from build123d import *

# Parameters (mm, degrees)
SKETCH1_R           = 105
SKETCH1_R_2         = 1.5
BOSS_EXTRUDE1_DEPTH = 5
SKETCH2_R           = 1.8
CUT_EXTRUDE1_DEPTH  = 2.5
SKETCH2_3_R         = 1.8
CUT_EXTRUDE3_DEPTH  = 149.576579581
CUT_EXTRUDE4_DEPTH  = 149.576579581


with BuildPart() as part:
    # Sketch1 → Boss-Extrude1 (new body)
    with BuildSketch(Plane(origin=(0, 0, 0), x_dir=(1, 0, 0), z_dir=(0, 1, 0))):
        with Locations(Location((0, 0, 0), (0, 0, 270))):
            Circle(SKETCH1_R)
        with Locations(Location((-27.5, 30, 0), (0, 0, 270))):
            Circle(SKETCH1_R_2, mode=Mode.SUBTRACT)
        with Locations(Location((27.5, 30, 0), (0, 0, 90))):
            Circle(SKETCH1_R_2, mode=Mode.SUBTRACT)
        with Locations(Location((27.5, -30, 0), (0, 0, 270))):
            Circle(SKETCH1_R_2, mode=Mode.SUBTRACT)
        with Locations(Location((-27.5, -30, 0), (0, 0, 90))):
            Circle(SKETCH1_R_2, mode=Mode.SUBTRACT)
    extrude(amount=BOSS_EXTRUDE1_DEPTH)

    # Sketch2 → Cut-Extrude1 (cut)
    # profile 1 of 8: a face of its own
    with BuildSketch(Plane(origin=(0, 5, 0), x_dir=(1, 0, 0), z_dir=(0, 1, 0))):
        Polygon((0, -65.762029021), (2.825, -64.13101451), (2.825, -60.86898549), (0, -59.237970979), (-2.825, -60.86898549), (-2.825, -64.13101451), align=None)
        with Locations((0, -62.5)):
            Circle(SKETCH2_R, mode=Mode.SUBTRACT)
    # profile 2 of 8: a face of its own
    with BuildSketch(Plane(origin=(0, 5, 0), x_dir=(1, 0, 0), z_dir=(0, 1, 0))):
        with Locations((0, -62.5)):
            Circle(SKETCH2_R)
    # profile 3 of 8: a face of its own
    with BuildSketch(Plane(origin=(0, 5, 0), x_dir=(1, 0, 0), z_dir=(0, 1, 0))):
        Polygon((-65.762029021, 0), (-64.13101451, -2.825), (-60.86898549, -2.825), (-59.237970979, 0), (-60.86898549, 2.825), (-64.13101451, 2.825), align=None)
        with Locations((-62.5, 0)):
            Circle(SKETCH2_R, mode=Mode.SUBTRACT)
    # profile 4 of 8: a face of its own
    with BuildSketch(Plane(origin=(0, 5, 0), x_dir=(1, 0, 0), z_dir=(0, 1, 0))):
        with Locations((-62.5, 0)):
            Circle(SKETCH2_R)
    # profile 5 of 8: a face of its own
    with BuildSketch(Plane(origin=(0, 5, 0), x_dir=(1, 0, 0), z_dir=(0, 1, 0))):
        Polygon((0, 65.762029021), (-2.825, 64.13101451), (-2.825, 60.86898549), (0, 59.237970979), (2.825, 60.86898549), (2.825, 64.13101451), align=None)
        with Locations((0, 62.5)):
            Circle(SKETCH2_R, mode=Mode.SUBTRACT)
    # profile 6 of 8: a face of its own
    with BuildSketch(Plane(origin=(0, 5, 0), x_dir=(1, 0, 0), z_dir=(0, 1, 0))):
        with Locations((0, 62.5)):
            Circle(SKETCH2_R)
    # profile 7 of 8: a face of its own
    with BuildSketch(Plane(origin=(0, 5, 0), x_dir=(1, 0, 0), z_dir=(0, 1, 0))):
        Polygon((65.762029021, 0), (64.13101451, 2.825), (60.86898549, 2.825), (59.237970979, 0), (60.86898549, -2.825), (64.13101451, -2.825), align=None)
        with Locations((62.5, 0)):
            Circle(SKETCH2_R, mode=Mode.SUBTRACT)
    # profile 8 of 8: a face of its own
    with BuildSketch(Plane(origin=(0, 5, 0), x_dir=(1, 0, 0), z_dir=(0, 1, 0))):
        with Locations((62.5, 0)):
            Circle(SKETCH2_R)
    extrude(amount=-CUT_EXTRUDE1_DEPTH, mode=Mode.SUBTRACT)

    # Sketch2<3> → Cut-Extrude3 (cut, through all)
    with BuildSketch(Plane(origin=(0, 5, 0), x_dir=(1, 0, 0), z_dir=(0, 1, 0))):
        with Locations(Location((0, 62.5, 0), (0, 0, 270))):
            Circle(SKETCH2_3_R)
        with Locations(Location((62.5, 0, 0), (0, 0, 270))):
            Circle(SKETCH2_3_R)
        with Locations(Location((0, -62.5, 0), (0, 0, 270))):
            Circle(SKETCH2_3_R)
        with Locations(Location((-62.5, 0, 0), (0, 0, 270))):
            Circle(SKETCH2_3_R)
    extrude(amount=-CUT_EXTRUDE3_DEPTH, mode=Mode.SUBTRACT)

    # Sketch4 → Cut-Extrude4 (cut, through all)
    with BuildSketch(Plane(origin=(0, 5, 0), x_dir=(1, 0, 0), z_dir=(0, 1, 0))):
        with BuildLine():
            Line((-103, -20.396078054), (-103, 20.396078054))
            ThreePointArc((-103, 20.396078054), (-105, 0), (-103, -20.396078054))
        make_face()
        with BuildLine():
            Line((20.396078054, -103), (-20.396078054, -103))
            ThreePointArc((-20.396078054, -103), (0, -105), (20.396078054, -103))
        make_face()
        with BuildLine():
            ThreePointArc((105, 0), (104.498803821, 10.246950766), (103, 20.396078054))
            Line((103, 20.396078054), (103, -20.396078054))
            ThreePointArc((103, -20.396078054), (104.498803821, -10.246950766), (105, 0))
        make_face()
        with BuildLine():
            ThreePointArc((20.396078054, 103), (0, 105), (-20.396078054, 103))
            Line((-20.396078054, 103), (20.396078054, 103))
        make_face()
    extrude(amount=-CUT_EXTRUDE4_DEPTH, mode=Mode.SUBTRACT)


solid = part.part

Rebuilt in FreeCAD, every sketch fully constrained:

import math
import FreeCAD as App
import Part
import Sketcher
from FreeCAD import Vector
Q = App.Units.Quantity

doc = App.newDocument("Part")
body = doc.addObject("PartDesign::Body", "Body")

# Sketch on XZ plane
sketch1 = body.newObject("Sketcher::SketchObject", "Sketch")
sketch1.AttachmentSupport = (doc.getObject("XZ_Plane"), [""])
sketch1.MapMode = "FlatFace"
sketch1.addGeometry([
    Part.Circle(Vector(0, 0, 0), Vector(0, 0, 1), 105),  # 0
    Part.Circle(Vector(-27.5, -30, 0), Vector(0, 0, 1), 1.5),  # 1
    Part.Circle(Vector(-27.5, 30, 0), Vector(0, 0, 1), 1.5),  # 2
    Part.Circle(Vector(27.5, -30, 0), Vector(0, 0, 1), 1.5),  # 3
    Part.Circle(Vector(27.5, 30, 0), Vector(0, 0, 1), 1.5),  # 4
], False)
sketch1.addConstraint([
    Sketcher.Constraint("Coincident", 0, 3, -1, 1),
    Sketcher.Constraint("Equal", 1, 2),
    Sketcher.Constraint("Equal", 2, 3),
    Sketcher.Constraint("Equal", 3, 4),
    Sketcher.Constraint("Symmetric", 2, 3, 3, 3, -1, 1),
    Sketcher.Constraint("Symmetric", 1, 3, 4, 3, -1, 1),
    Sketcher.Constraint("Symmetric", 1, 3, 3, 3, -2),
    Sketcher.Constraint("Diameter", 0, 210.0),
    Sketcher.Constraint("Diameter", 1, 3.0),
    Sketcher.Constraint("DistanceY", 1, 3, -1, 1, 30.0),
    Sketcher.Constraint("DistanceX", 1, 3, 3, 3, 55.0),
])
pad1 = body.newObject("PartDesign::Pad", "Pad")
pad1.Profile = sketch1
pad1.Length = 5
pad1.Reversed = True

# Sketch on XZ plane
sketch2 = body.newObject("Sketcher::SketchObject", "Sketch001")
sketch2.AttachmentSupport = (doc.getObject("XZ_Plane"), [""])
sketch2.MapMode = "FlatFace"
sketch2.AttachmentOffset = App.Placement(Vector(0, 0, -5), App.Rotation())
sketch2.addGeometry([
    Part.LineSegment(Vector(0, 65.762029, 0), Vector(2.825, 64.131015, 0)),  # 0
    Part.LineSegment(Vector(2.825, 64.131015, 0), Vector(2.825, 60.868985, 0)),  # 1
    Part.LineSegment(Vector(2.825, 60.868985, 0), Vector(0, 59.237971, 0)),  # 2
    Part.LineSegment(Vector(0, 59.237971, 0), Vector(-2.825, 60.868985, 0)),  # 3
    Part.LineSegment(Vector(-2.825, 60.868985, 0), Vector(-2.825, 64.131015, 0)),  # 4
    Part.LineSegment(Vector(-2.825, 64.131015, 0), Vector(0, 65.762029, 0)),  # 5
    Part.LineSegment(Vector(-65.762029, 0, 0), Vector(-64.131015, 2.825, 0)),  # 6
    Part.LineSegment(Vector(-64.131015, 2.825, 0), Vector(-60.868985, 2.825, 0)),  # 7
    Part.LineSegment(Vector(-60.868985, 2.825, 0), Vector(-59.237971, 0, 0)),  # 8
    Part.LineSegment(Vector(-59.237971, 0, 0), Vector(-60.868985, -2.825, 0)),  # 9
    Part.LineSegment(Vector(-60.868985, -2.825, 0), Vector(-64.131015, -2.825, 0)),  # 10
    Part.LineSegment(Vector(-64.131015, -2.825, 0), Vector(-65.762029, 0, 0)),  # 11
    Part.LineSegment(Vector(0, -65.762029, 0), Vector(-2.825, -64.131015, 0)),  # 12
    Part.LineSegment(Vector(-2.825, -64.131015, 0), Vector(-2.825, -60.868985, 0)),  # 13
    Part.LineSegment(Vector(-2.825, -60.868985, 0), Vector(0, -59.237971, 0)),  # 14
    Part.LineSegment(Vector(0, -59.237971, 0), Vector(2.825, -60.868985, 0)),  # 15
    Part.LineSegment(Vector(2.825, -60.868985, 0), Vector(2.825, -64.131015, 0)),  # 16
    Part.LineSegment(Vector(2.825, -64.131015, 0), Vector(0, -65.762029, 0)),  # 17
    Part.LineSegment(Vector(65.762029, 0, 0), Vector(64.131015, -2.825, 0)),  # 18
    Part.LineSegment(Vector(64.131015, -2.825, 0), Vector(60.868985, -2.825, 0)),  # 19
    Part.LineSegment(Vector(60.868985, -2.825, 0), Vector(59.237971, 0, 0)),  # 20
    Part.LineSegment(Vector(59.237971, 0, 0), Vector(60.868985, 2.825, 0)),  # 21
    Part.LineSegment(Vector(60.868985, 2.825, 0), Vector(64.131015, 2.825, 0)),  # 22
    Part.LineSegment(Vector(64.131015, 2.825, 0), Vector(65.762029, 0, 0)),  # 23
], False)
sketch2.addConstraint([
    Sketcher.Constraint("Coincident", 0, 2, 1, 1),
    Sketcher.Constraint("Coincident", 1, 2, 2, 1),
    Sketcher.Constraint("Coincident", 2, 2, 3, 1),
    Sketcher.Constraint("Coincident", 3, 2, 4, 1),
    Sketcher.Constraint("Coincident", 4, 2, 5, 1),
    Sketcher.Constraint("Coincident", 5, 2, 0, 1),
    Sketcher.Constraint("Coincident", 6, 2, 7, 1),
    Sketcher.Constraint("Coincident", 7, 2, 8, 1),
    Sketcher.Constraint("Coincident", 8, 2, 9, 1),
    Sketcher.Constraint("Coincident", 9, 2, 10, 1),
    Sketcher.Constraint("Coincident", 10, 2, 11, 1),
    Sketcher.Constraint("Coincident", 11, 2, 6, 1),
    Sketcher.Constraint("Coincident", 12, 2, 13, 1),
    Sketcher.Constraint("Coincident", 13, 2, 14, 1),
    Sketcher.Constraint("Coincident", 14, 2, 15, 1),
    Sketcher.Constraint("Coincident", 15, 2, 16, 1),
    Sketcher.Constraint("Coincident", 16, 2, 17, 1),
    Sketcher.Constraint("Coincident", 17, 2, 12, 1),
    Sketcher.Constraint("Coincident", 18, 2, 19, 1),
    Sketcher.Constraint("Coincident", 19, 2, 20, 1),
    Sketcher.Constraint("Coincident", 20, 2, 21, 1),
    Sketcher.Constraint("Coincident", 21, 2, 22, 1),
    Sketcher.Constraint("Coincident", 22, 2, 23, 1),
    Sketcher.Constraint("Coincident", 23, 2, 18, 1),
    Sketcher.Constraint("Vertical", 1),
    Sketcher.Constraint("Vertical", 4),
    Sketcher.Constraint("Horizontal", 7),
    Sketcher.Constraint("Horizontal", 10),
    Sketcher.Constraint("Vertical", 13),
    Sketcher.Constraint("Vertical", 16),
    Sketcher.Constraint("Horizontal", 19),
    Sketcher.Constraint("Horizontal", 22),
    Sketcher.Constraint("Symmetric", 0, 2, 12, 2, -1, 1),
    Sketcher.Constraint("Symmetric", 2, 2, 14, 2, -1, 1),
    Sketcher.Constraint("Symmetric", 3, 2, 15, 2, -1, 1),
    Sketcher.Constraint("Symmetric", 5, 2, 17, 2, -1, 1),
    Sketcher.Constraint("Symmetric", 6, 2, 18, 2, -1, 1),
    Sketcher.Constraint("Symmetric", 8, 2, 20, 2, -1, 1),
    Sketcher.Constraint("Symmetric", 9, 2, 21, 2, -1, 1),
    Sketcher.Constraint("Symmetric", 11, 2, 23, 2, -1, 1),
    Sketcher.Constraint("Symmetric", 1, 2, 3, 2, -2),
    Sketcher.Constraint("Symmetric", 10, 2, 18, 2, -2),
    Sketcher.Constraint("PointOnObject", 2, 2, -2),
    Sketcher.Constraint("PointOnObject", 5, 2, -2),
    Sketcher.Constraint("PointOnObject", 8, 2, -1),
    Sketcher.Constraint("PointOnObject", 11, 2, -1),
    Sketcher.Constraint("Parallel", 0, 3),
    Sketcher.Constraint("Parallel", 2, 5),
    Sketcher.Constraint("Perpendicular", 3, 6),
    Sketcher.Constraint("Perpendicular", 5, 8),
    Sketcher.Constraint("Parallel", 6, 9),
    Sketcher.Constraint("Perpendicular", 11, 14),
    Sketcher.Constraint("Parallel", 14, 17),
    Sketcher.Constraint("Perpendicular", 17, 20),
    Sketcher.Constraint("Parallel", 20, 23),
    Sketcher.Constraint("Equal", 22, 1),
    Sketcher.Constraint("Equal", 5, 6),
    Sketcher.Constraint("Angle", 0, Q("-30 deg")),
    Sketcher.Constraint("DistanceX", 3, 2, 1, 2, 5.65),
    Sketcher.Constraint("DistanceX", 7, 1, 7, 2, 3.262029),
    Sketcher.Constraint("DistanceY", -1, 1, 2, 2, 59.237971),
    Sketcher.Constraint("DistanceX", 8, 2, -1, 1, 59.237971),
])
pocket1 = body.newObject("PartDesign::Pocket", "Pocket")
pocket1.Profile = sketch2
pocket1.Length = 2.5
pocket1.Reversed = True

# Sketch on XZ plane
sketch3 = body.newObject("Sketcher::SketchObject", "Sketch002")
sketch3.AttachmentSupport = (doc.getObject("XZ_Plane"), [""])
sketch3.MapMode = "FlatFace"
sketch3.AttachmentOffset = App.Placement(Vector(0, 0, -5), App.Rotation())
sketch3.addGeometry([
    Part.Circle(Vector(0, -62.5, 0), Vector(0, 0, 1), 1.8),
    Part.Circle(Vector(62.5, 0, 0), Vector(0, 0, 1), 1.8),
    Part.Circle(Vector(0, 62.5, 0), Vector(0, 0, 1), 1.8),
    Part.Circle(Vector(-62.5, 0, 0), Vector(0, 0, 1), 1.8),
], False)
sketch3.addConstraint([
    Sketcher.Constraint("Equal", 0, 1),
    Sketcher.Constraint("Equal", 1, 2),
    Sketcher.Constraint("Equal", 2, 3),
    Sketcher.Constraint("Symmetric", 0, 3, 2, 3, -1, 1),
    Sketcher.Constraint("Symmetric", 1, 3, 3, 3, -1, 1),
    Sketcher.Constraint("PointOnObject", 0, 3, -2),
    Sketcher.Constraint("PointOnObject", 1, 3, -1),
    Sketcher.Constraint("Diameter", 0, 3.6),
    Sketcher.Constraint("DistanceY", 0, 3, 2, 3, 125.0),
    Sketcher.Constraint("DistanceX", 3, 3, 1, 3, 125.0),
])
pocket2 = body.newObject("PartDesign::Pocket", "Pocket001")
pocket2.Profile = sketch3
pocket2.Type = "ThroughAll"
pocket2.Reversed = True

# Sketch on XZ plane
sketch4 = body.newObject("Sketcher::SketchObject", "Sketch003")
sketch4.AttachmentSupport = (doc.getObject("XZ_Plane"), [""])
sketch4.MapMode = "FlatFace"
sketch4.AttachmentOffset = App.Placement(Vector(0, 0, -5), App.Rotation())
sketch4.addGeometry([
    Part.LineSegment(Vector(-103, 20.396078, 0), Vector(-103, -20.396078, 0)),  # 0
    Part.ArcOfCircle(Part.Circle(Vector(0, 0, 0), Vector(0, 0, 1), 105), math.radians(168.799182), math.radians(191.200818)),  # 1
    Part.LineSegment(Vector(20.396078, 103, 0), Vector(-20.396078, 103, 0)),  # 2
    Part.ArcOfCircle(Part.Circle(Vector(0, 0, 0), Vector(0, 0, 1), 105), math.radians(78.799182), math.radians(101.200818)),  # 3
    Part.ArcOfCircle(Part.Circle(Vector(0, 0, 0), Vector(0, 0, 1), 105), math.radians(-11.200818), math.radians(0)),  # 4
    Part.LineSegment(Vector(103, -20.396078, 0), Vector(103, 20.396078, 0)),  # 5
    Part.ArcOfCircle(Part.Circle(Vector(0, 0, 0), Vector(0, 0, 1), 105), math.radians(0), math.radians(11.200818)),  # 6
    Part.ArcOfCircle(Part.Circle(Vector(0, 0, 0), Vector(0, 0, 1), 105), math.radians(-101.200818), math.radians(-78.799182)),  # 7
    Part.LineSegment(Vector(-20.396078, -103, 0), Vector(20.396078, -103, 0)),  # 8
], False)
sketch4.addConstraint([
    Sketcher.Constraint("Coincident", 0, 1, 1, 1),
    Sketcher.Constraint("Coincident", 1, 2, 0, 2),
    Sketcher.Constraint("Coincident", 2, 1, 3, 1),
    Sketcher.Constraint("Coincident", 3, 2, 2, 2),
    Sketcher.Constraint("Coincident", 4, 1, 5, 1),
    Sketcher.Constraint("Coincident", 5, 2, 6, 2),
    Sketcher.Constraint("Tangent", 6, 1, 4, 2),
    Sketcher.Constraint("Coincident", 7, 1, 8, 1),
    Sketcher.Constraint("Coincident", 8, 2, 7, 2),
    Sketcher.Constraint("Vertical", 0),
    Sketcher.Constraint("Horizontal", 2),
    Sketcher.Constraint("Vertical", 5),
    Sketcher.Constraint("Horizontal", 8),
    Sketcher.Constraint("Coincident", 1, 3, -1, 1),
    Sketcher.Constraint("Coincident", 3, 3, -1, 1),
    Sketcher.Constraint("Coincident", 4, 3, -1, 1),
    Sketcher.Constraint("Coincident", 7, 3, -1, 1),
    Sketcher.Constraint("Equal", 1, 3),
    Sketcher.Constraint("Equal", 3, 4),
    Sketcher.Constraint("Equal", 4, 6),
    Sketcher.Constraint("Equal", 6, 7),
    Sketcher.Constraint("PointOnObject", 6, 1, -1),
    Sketcher.Constraint("Horizontal", 1, 2, 4, 1),
    Sketcher.Constraint("Vertical", 3, 2, 7, 1),
    Sketcher.Constraint("Equal", 8, 0),
    Sketcher.Constraint("Radius", 1, 105.0),
    Sketcher.Constraint("DistanceX", 0, 1, -1, 1, 103.0),
])
pocket3 = body.newObject("PartDesign::Pocket", "Pocket002")
pocket3.Profile = sketch4
pocket3.Type = "ThroughAll"
pocket3.Reversed = True

doc.recompute()
